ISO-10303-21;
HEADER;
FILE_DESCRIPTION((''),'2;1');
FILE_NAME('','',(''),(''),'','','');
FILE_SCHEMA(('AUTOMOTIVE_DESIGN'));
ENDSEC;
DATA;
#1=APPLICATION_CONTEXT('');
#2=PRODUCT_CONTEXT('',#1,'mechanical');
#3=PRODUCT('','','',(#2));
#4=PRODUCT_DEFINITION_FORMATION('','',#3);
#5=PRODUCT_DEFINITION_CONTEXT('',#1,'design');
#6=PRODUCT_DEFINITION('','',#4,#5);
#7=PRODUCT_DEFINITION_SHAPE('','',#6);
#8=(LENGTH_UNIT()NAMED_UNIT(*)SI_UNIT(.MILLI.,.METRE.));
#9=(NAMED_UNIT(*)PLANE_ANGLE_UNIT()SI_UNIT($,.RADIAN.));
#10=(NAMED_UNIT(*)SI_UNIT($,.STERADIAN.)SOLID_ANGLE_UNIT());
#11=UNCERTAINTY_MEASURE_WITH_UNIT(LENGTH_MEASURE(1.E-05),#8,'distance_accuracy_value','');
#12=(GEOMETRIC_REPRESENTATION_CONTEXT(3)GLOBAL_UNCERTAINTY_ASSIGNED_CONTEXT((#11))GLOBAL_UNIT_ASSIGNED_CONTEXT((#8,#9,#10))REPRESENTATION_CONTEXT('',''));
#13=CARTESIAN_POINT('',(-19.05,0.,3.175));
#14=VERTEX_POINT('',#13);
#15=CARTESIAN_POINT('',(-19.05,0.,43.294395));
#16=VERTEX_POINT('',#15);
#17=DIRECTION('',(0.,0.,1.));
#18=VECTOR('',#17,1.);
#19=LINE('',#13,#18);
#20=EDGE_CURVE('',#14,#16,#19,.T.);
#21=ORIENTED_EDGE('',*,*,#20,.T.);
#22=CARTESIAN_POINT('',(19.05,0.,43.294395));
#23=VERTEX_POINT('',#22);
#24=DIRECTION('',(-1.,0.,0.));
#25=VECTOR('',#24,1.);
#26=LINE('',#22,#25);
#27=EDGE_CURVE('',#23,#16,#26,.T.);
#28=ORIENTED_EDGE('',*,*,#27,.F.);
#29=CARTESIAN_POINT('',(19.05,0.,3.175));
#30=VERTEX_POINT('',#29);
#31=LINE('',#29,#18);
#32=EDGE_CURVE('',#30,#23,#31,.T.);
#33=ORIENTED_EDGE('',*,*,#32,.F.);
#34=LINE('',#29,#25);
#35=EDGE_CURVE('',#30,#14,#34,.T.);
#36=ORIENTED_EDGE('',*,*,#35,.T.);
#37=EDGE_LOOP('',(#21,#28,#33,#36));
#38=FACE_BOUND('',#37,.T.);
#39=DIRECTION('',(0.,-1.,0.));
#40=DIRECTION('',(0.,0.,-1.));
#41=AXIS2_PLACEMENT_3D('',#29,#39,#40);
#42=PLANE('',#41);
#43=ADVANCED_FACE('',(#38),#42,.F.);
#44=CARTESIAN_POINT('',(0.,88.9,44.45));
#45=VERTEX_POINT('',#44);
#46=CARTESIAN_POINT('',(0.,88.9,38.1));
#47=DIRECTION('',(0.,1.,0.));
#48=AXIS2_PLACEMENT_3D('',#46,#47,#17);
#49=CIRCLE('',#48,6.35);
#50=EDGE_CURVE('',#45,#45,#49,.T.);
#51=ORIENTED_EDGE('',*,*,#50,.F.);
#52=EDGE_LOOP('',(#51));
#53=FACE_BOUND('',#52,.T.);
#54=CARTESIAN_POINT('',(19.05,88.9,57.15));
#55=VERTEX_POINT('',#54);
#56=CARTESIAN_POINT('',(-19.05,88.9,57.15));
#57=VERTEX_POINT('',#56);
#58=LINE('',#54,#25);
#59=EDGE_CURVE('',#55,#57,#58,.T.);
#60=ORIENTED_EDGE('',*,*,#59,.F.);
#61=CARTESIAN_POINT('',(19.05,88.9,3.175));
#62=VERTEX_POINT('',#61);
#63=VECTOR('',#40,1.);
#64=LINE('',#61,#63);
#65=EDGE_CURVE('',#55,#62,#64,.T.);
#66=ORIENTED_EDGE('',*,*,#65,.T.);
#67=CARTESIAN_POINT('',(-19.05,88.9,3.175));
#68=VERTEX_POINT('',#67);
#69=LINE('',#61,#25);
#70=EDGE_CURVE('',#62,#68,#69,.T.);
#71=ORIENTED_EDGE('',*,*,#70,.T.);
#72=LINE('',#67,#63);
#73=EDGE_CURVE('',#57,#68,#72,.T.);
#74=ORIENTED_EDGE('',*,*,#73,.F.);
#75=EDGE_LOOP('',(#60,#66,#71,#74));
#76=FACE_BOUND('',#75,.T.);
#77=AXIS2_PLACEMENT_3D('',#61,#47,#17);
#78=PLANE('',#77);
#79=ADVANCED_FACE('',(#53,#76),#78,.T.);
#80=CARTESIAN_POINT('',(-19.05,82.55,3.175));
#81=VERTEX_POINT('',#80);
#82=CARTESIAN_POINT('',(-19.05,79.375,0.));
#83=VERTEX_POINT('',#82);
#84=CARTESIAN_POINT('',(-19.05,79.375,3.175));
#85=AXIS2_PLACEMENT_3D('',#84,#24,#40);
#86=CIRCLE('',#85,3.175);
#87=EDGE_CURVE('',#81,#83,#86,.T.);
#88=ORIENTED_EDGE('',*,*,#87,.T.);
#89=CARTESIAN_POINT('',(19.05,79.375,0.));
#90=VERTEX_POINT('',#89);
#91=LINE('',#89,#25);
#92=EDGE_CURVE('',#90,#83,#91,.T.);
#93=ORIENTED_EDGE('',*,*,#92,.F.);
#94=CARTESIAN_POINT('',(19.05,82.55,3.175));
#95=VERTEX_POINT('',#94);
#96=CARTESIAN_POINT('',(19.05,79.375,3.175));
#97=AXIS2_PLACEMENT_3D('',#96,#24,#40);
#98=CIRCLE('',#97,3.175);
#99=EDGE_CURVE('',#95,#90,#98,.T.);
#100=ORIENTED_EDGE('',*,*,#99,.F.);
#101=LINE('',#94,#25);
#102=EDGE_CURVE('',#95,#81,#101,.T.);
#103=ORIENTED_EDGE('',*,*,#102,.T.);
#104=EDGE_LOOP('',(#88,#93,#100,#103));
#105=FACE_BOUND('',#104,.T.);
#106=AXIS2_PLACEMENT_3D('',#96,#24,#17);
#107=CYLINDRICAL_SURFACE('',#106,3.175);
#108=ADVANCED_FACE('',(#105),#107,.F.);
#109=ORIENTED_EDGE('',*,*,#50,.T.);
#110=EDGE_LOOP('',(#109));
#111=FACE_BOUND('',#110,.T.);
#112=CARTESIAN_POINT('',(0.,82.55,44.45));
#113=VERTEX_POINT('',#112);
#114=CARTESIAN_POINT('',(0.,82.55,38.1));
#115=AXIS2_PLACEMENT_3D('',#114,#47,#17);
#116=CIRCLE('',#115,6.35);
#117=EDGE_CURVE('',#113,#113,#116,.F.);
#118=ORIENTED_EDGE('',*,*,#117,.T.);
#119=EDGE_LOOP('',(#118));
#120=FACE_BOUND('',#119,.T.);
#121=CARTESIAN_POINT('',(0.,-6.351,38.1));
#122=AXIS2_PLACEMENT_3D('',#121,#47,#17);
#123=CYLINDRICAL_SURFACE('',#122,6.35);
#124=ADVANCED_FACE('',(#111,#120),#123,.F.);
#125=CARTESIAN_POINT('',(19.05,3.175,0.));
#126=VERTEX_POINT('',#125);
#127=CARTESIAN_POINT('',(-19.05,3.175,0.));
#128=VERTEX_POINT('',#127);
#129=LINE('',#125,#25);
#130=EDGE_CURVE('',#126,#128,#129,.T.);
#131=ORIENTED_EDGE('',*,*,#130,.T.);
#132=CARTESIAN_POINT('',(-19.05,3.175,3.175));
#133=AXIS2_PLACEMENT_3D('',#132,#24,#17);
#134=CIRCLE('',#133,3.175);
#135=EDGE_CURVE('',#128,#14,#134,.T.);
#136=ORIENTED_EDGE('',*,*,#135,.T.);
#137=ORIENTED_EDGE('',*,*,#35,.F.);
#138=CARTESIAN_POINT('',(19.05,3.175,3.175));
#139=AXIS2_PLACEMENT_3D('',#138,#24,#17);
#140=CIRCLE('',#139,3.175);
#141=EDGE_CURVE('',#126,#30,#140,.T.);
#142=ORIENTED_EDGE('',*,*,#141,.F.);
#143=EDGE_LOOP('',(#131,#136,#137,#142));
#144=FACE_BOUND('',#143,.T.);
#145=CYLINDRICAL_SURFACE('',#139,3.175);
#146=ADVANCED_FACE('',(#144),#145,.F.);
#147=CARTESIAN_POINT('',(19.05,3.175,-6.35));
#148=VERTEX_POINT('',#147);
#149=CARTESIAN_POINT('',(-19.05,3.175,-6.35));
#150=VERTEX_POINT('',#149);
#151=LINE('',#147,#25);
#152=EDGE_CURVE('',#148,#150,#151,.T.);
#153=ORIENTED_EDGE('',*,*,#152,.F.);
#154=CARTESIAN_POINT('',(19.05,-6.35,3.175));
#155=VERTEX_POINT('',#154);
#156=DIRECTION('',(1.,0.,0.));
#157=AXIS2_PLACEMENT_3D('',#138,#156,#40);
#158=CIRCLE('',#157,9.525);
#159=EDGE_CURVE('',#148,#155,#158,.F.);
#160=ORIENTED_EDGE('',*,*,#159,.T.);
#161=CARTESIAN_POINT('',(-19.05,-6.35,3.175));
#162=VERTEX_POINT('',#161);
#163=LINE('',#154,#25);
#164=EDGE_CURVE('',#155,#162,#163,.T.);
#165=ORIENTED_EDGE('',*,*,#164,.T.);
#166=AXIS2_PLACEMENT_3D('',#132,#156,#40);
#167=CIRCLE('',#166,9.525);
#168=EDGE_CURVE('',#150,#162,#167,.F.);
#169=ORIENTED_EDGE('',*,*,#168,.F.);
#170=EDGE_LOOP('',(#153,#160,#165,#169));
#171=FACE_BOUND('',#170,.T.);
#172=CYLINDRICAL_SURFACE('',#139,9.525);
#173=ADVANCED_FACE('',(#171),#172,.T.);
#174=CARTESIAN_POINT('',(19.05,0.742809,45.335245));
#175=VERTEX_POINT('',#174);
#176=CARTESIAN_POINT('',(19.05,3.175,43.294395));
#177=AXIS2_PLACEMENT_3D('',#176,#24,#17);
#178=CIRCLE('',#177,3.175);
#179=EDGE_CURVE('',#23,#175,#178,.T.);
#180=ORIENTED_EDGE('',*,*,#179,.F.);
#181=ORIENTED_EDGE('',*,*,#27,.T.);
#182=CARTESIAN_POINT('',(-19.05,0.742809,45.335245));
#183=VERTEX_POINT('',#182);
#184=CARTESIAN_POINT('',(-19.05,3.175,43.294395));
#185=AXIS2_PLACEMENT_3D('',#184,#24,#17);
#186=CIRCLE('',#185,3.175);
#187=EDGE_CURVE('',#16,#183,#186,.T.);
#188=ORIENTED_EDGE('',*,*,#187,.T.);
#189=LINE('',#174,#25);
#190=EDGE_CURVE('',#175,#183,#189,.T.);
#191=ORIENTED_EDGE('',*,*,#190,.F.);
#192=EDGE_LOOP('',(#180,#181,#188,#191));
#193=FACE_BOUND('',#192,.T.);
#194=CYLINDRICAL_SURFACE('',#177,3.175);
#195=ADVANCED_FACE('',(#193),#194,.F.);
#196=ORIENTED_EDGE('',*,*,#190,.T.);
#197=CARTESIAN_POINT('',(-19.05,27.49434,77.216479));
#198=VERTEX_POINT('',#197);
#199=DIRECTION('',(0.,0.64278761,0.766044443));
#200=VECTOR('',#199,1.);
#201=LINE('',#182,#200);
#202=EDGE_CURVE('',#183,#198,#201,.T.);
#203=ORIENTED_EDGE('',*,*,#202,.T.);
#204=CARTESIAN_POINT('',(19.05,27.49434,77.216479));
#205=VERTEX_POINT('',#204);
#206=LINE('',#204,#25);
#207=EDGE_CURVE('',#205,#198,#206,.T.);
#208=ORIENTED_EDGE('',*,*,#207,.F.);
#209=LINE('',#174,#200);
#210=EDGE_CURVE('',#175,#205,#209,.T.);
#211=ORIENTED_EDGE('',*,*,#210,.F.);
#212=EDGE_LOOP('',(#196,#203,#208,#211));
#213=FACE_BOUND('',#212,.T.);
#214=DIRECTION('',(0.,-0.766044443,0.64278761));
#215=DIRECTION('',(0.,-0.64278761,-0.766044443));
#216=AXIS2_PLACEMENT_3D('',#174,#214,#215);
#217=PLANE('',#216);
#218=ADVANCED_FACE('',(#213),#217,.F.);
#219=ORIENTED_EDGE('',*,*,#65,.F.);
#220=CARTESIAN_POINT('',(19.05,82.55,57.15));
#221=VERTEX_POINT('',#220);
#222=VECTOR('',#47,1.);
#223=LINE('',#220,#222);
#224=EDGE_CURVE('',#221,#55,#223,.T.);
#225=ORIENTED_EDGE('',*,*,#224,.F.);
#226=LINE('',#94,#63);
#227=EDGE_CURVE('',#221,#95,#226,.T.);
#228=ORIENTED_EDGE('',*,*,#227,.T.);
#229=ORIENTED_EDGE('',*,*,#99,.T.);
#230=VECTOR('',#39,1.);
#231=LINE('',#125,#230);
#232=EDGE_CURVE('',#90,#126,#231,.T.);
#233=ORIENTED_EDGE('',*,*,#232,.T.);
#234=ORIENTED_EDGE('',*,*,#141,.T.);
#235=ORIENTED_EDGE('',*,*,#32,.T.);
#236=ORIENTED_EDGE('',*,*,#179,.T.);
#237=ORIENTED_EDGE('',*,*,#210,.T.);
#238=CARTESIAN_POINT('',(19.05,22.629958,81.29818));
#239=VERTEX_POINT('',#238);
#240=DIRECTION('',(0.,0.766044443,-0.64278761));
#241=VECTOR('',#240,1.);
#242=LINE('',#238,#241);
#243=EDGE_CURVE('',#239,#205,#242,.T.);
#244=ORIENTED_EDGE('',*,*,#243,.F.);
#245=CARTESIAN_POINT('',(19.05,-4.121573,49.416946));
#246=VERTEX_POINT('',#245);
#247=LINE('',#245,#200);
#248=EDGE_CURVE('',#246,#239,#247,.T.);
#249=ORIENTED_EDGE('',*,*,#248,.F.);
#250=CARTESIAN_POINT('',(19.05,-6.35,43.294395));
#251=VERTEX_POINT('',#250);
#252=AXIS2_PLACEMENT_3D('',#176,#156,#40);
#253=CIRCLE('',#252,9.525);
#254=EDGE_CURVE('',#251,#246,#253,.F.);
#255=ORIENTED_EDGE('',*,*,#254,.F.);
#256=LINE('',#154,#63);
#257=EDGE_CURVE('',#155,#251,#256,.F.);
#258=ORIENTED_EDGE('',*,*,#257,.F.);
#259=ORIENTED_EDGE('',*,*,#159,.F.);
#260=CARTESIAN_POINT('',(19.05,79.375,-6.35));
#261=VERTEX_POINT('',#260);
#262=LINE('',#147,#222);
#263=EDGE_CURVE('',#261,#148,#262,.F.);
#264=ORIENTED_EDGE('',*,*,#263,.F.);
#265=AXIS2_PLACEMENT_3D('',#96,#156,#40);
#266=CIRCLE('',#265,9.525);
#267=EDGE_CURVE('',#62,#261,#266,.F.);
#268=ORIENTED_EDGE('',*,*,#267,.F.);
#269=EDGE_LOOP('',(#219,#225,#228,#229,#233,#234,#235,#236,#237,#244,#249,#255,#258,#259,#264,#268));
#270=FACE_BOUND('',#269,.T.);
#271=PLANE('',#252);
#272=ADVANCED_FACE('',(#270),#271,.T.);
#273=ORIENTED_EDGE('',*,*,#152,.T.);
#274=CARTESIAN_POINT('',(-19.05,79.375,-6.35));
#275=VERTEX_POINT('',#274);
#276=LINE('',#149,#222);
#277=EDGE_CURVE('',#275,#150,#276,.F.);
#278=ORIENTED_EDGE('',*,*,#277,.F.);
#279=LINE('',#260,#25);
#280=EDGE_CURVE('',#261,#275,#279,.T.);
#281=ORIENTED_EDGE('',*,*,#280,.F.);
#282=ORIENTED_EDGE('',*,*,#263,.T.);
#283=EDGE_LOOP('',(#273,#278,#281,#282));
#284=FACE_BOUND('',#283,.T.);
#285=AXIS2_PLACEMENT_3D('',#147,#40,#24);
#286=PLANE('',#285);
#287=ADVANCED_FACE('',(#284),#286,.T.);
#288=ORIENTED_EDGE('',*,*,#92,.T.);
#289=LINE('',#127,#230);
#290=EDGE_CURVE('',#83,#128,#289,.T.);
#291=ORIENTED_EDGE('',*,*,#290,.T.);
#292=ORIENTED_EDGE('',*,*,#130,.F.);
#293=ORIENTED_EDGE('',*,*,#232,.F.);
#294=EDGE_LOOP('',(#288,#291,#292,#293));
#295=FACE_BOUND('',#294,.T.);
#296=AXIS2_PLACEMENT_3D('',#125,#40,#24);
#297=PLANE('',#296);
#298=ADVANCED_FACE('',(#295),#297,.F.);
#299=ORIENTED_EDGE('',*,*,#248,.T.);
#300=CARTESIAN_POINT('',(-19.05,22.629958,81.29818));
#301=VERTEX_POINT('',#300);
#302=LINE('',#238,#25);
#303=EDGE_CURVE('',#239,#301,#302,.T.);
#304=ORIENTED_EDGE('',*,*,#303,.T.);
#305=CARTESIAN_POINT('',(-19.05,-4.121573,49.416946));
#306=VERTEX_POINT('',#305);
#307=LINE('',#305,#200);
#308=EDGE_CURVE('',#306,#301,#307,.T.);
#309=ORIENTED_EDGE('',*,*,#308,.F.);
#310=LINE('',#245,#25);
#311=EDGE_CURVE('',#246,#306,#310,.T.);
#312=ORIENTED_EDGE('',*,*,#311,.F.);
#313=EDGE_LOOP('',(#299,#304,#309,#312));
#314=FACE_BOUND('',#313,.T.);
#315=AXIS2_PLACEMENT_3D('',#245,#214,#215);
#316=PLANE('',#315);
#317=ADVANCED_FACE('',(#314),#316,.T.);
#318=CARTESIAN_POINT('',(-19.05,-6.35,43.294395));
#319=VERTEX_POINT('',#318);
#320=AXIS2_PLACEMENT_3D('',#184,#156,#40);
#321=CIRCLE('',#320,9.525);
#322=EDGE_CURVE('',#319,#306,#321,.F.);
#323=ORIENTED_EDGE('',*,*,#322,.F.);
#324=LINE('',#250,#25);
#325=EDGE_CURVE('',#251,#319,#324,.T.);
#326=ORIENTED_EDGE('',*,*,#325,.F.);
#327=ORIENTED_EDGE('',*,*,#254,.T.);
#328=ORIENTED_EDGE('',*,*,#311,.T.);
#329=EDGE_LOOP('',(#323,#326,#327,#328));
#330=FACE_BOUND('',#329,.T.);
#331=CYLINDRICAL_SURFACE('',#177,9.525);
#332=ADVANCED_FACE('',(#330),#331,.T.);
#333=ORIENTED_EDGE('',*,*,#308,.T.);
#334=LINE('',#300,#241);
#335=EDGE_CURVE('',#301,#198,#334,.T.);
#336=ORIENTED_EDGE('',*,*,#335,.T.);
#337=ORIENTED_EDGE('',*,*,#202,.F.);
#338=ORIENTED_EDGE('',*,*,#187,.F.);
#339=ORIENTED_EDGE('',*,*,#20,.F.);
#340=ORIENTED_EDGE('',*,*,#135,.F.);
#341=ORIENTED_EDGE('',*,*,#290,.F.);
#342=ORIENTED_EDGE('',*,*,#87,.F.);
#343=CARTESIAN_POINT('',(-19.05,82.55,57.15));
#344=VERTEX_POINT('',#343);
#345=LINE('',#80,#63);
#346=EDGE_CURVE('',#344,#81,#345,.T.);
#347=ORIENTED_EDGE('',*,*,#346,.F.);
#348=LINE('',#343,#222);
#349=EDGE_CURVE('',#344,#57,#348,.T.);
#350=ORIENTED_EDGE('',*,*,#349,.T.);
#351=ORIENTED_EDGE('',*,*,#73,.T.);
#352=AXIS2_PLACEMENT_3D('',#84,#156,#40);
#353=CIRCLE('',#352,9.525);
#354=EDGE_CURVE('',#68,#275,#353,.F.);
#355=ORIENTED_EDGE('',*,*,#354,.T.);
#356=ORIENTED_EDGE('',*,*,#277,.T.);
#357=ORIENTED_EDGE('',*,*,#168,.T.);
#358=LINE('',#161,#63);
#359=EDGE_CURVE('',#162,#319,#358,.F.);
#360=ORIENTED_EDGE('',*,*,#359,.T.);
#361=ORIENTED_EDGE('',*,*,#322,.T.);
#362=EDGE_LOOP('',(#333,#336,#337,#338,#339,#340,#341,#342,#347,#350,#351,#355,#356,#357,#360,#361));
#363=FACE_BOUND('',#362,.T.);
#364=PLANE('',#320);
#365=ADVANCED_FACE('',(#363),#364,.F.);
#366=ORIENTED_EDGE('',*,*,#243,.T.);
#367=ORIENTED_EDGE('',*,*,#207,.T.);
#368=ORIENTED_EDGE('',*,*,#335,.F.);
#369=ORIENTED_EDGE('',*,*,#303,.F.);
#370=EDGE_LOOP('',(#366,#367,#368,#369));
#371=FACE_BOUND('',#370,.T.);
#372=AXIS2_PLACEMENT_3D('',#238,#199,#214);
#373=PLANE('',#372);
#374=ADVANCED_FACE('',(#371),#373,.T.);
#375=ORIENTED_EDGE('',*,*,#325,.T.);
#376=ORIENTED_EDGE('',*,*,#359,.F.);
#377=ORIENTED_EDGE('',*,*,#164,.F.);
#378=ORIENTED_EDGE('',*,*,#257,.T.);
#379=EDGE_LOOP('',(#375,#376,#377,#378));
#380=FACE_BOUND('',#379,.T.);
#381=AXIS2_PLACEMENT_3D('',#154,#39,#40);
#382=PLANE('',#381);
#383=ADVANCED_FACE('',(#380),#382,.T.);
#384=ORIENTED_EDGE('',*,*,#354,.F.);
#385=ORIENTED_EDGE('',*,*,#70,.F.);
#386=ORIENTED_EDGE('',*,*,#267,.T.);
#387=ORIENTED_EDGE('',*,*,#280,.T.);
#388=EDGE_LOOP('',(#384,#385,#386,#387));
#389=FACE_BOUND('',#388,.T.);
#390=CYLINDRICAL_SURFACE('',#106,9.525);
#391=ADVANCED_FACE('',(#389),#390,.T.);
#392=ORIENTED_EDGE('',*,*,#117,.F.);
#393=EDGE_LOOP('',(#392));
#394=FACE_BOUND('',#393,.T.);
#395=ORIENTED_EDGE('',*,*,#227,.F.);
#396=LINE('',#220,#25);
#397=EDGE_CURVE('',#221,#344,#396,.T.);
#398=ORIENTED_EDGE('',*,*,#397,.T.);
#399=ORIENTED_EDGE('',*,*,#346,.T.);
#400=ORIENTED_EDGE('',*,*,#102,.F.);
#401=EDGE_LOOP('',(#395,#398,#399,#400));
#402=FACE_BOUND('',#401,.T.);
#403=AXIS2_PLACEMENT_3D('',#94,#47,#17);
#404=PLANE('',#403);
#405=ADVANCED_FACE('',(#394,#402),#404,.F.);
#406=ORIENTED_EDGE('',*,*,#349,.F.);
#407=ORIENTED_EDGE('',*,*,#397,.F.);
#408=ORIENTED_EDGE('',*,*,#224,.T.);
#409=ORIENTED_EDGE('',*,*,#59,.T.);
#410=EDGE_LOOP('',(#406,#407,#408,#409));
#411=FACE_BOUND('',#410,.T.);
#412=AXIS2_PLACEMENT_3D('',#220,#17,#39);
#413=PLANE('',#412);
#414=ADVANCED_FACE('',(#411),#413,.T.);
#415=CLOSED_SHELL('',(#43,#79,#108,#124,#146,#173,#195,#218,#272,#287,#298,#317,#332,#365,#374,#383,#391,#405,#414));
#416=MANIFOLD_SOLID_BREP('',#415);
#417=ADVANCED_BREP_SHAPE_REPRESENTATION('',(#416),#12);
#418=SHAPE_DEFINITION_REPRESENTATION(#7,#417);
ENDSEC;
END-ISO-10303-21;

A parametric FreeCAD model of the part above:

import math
import FreeCAD as App
import Part
import Sketcher

V = App.Vector
Q = App.Units.Quantity

doc = App.newDocument("Part")
body = doc.addObject("PartDesign::Body", "Body")

sketch1 = body.newObject("Sketcher::SketchObject", "Sketch")
sketch1.AttachmentSupport = (doc.getObject("YZ_Plane"), [""])
sketch1.MapMode = "FlatFace"
sketch1.addGeometry(Part.LineSegment(V(0.7, 45.3, 0), V(27.5, 77.2, 0)), False)
sketch1.addGeometry(Part.LineSegment(V(27.5, 77.2, 0), V(22.6, 81.3, 0)), False)
sketch1.addGeometry(Part.LineSegment(V(22.6, 81.3, 0), V(-4.1, 49.4, 0)), False)
sketch1.addGeometry(Part.ArcOfCircle(Part.Circle(V(3.2, 43.3, 0), V(0, 0, 1), 9.5), math.radians(140), math.radians(180)), False)
sketch1.addGeometry(Part.LineSegment(V(-6.3, 43.3, 0), V(-6.3, 3.2, 0)), False)
sketch1.addGeometry(Part.ArcOfCircle(Part.Circle(V(3.2, 3.2, 0), V(0, 0, 1), 9.5), math.radians(180), math.radians(270)), False)
sketch1.addGeometry(Part.LineSegment(V(3.2, -6.3, 0), V(79.4, -6.3, 0)), False)
sketch1.addGeometry(Part.ArcOfCircle(Part.Circle(V(79.4, 3.2, 0), V(0, 0, 1), 9.5), math.radians(-90), math.radians(0)), False)
sketch1.addGeometry(Part.LineSegment(V(88.9, 3.2, 0), V(88.9, 57.1, 0)), False)
sketch1.addGeometry(Part.LineSegment(V(88.9, 57.1, 0), V(82.5, 57.1, 0)), False)
sketch1.addGeometry(Part.LineSegment(V(82.5, 57.1, 0), V(82.5, 3.2, 0)), False)
sketch1.addGeometry(Part.ArcOfCircle(Part.Circle(V(79.4, 3.2, 0), V(0, 0, 1), 3.2), math.radians(-90), math.radians(0)), False)
sketch1.addGeometry(Part.LineSegment(V(79.4, 0, 0), V(3.2, 0, 0)), False)
sketch1.addGeometry(Part.ArcOfCircle(Part.Circle(V(3.2, 3.2, 0), V(0, 0, 1), 3.2), math.radians(-180), math.radians(-90)), False)
sketch1.addGeometry(Part.LineSegment(V(0, 3.2, 0), V(0, 43.3, 0)), False)
sketch1.addGeometry(Part.ArcOfCircle(Part.Circle(V(3.2, 43.3, 0), V(0, 0, 1), 3.2), math.radians(140), math.radians(180)), False)
sketch1.addConstraint(Sketcher.Constraint("Coincident", 0, 2, 1, 1))
sketch1.addConstraint(Sketcher.Constraint("Coincident", 1, 2, 2, 1))
sketch1.addConstraint(Sketcher.Constraint("Tangent", 2, 2, 3, 1))
sketch1.addConstraint(Sketcher.Constraint("Tangent", 3, 2, 4, 1))
sketch1.addConstraint(Sketcher.Constraint("Tangent", 4, 2, 5, 1))
sketch1.addConstraint(Sketcher.Constraint("Tangent", 5, 2, 6, 1))
sketch1.addConstraint(Sketcher.Constraint("Tangent", 6, 2, 7, 1))
sketch1.addConstraint(Sketcher.Constraint("Tangent", 7, 2, 8, 1))
sketch1.addConstraint(Sketcher.Constraint("Coincident", 8, 2, 9, 1))
sketch1.addConstraint(Sketcher.Constraint("Coincident", 9, 2, 10, 1))
sketch1.addConstraint(Sketcher.Constraint("Tangent", 10, 2, 11, 2))
sketch1.addConstraint(Sketcher.Constraint("Tangent", 11, 1, 12, 1))
sketch1.addConstraint(Sketcher.Constraint("Tangent", 12, 2, 13, 2))
sketch1.addConstraint(Sketcher.Constraint("Tangent", 13, 1, 14, 1))
sketch1.addConstraint(Sketcher.Constraint("Tangent", 14, 2, 15, 2))
sketch1.addConstraint(Sketcher.Constraint("Tangent", 15, 1, 0, 1))
sketch1.addConstraint(Sketcher.Constraint("Vertical", 4))
sketch1.addConstraint(Sketcher.Constraint("Horizontal", 6))
sketch1.addConstraint(Sketcher.Constraint("Vertical", 8))
sketch1.addConstraint(Sketcher.Constraint("Horizontal", 9))
sketch1.addConstraint(Sketcher.Constraint("Vertical", 10))
sketch1.addConstraint(Sketcher.Constraint("Horizontal", 12))
sketch1.addConstraint(Sketcher.Constraint("Vertical", 14))
sketch1.addConstraint(Sketcher.Constraint("Coincident", 11, 3, 7, 3))
sketch1.addConstraint(Sketcher.Constraint("Coincident", 13, 3, 5, 3))
sketch1.addConstraint(Sketcher.Constraint("Coincident", 15, 3, 3, 3))
sketch1.addConstraint(Sketcher.Constraint("Equal", 3, 5))
sketch1.addConstraint(Sketcher.Constraint("Equal", 5, 7))
sketch1.addConstraint(Sketcher.Constraint("PointOnObject", 11, 1, -1))
sketch1.addConstraint(Sketcher.Constraint("PointOnObject", 13, 1, -2))
sketch1.addConstraint(Sketcher.Constraint("Perpendicular", 0, 1))
sketch1.addConstraint(Sketcher.Constraint("Perpendicular", 1, 2))
sketch1.addConstraint(Sketcher.Constraint("DistanceX", 6, 1, 6, 2, Q("3 in")))
sketch1.addConstraint(Sketcher.Constraint("Angle", 0, Q("50 deg")))
sketch1.addConstraint(Sketcher.Constraint("Radius", 3, Q("0.375 in")))
sketch1.addConstraint(Sketcher.Constraint("Radius", 11, Q("0.125 in")))
sketch1.addConstraint(Sketcher.Constraint("DistanceY", 6, 2, 8, 2, Q("2.5 in")))
sketch1.addConstraint(Sketcher.Constraint("DistanceY", 4, 2, 4, 1, Q("40.119395 mm")))
sketch1.addConstraint(Sketcher.Constraint("DistanceX", -1, 1, 0, 2, Q("27.49434 mm")))
pad1 = body.newObject("PartDesign::Pad", "Pad")
pad1.Profile = sketch1
pad1.Length = Q("1.5 in")
pad1.Midplane = True

sketch2 = body.newObject("Sketcher::SketchObject", "Sketch001")
sketch2.AttachmentSupport = (doc.getObject("XZ_Plane"), [""])
sketch2.MapMode = "FlatFace"
sketch2.AttachmentOffset = App.Placement(V(0, 0, -3.5 * 25.4), App.Rotation())
sketch2.addGeometry(Part.Circle(V(0, 38, 0), V(0, 0, 1), 6), False)
sketch2.addConstraint(Sketcher.Constraint("PointOnObject", 0, 3, -2))
sketch2.addConstraint(Sketcher.Constraint("Diameter", 0, Q("0.5 in")))
sketch2.addConstraint(Sketcher.Constraint("DistanceY", -1, 1, 0, 3, Q("1.5 in")))
pocket1 = body.newObject("PartDesign::Pocket", "Pocket")
pocket1.Profile = sketch2
pocket1.Type = "UpToFirst"
pocket1.Reversed = True

doc.recompute()
